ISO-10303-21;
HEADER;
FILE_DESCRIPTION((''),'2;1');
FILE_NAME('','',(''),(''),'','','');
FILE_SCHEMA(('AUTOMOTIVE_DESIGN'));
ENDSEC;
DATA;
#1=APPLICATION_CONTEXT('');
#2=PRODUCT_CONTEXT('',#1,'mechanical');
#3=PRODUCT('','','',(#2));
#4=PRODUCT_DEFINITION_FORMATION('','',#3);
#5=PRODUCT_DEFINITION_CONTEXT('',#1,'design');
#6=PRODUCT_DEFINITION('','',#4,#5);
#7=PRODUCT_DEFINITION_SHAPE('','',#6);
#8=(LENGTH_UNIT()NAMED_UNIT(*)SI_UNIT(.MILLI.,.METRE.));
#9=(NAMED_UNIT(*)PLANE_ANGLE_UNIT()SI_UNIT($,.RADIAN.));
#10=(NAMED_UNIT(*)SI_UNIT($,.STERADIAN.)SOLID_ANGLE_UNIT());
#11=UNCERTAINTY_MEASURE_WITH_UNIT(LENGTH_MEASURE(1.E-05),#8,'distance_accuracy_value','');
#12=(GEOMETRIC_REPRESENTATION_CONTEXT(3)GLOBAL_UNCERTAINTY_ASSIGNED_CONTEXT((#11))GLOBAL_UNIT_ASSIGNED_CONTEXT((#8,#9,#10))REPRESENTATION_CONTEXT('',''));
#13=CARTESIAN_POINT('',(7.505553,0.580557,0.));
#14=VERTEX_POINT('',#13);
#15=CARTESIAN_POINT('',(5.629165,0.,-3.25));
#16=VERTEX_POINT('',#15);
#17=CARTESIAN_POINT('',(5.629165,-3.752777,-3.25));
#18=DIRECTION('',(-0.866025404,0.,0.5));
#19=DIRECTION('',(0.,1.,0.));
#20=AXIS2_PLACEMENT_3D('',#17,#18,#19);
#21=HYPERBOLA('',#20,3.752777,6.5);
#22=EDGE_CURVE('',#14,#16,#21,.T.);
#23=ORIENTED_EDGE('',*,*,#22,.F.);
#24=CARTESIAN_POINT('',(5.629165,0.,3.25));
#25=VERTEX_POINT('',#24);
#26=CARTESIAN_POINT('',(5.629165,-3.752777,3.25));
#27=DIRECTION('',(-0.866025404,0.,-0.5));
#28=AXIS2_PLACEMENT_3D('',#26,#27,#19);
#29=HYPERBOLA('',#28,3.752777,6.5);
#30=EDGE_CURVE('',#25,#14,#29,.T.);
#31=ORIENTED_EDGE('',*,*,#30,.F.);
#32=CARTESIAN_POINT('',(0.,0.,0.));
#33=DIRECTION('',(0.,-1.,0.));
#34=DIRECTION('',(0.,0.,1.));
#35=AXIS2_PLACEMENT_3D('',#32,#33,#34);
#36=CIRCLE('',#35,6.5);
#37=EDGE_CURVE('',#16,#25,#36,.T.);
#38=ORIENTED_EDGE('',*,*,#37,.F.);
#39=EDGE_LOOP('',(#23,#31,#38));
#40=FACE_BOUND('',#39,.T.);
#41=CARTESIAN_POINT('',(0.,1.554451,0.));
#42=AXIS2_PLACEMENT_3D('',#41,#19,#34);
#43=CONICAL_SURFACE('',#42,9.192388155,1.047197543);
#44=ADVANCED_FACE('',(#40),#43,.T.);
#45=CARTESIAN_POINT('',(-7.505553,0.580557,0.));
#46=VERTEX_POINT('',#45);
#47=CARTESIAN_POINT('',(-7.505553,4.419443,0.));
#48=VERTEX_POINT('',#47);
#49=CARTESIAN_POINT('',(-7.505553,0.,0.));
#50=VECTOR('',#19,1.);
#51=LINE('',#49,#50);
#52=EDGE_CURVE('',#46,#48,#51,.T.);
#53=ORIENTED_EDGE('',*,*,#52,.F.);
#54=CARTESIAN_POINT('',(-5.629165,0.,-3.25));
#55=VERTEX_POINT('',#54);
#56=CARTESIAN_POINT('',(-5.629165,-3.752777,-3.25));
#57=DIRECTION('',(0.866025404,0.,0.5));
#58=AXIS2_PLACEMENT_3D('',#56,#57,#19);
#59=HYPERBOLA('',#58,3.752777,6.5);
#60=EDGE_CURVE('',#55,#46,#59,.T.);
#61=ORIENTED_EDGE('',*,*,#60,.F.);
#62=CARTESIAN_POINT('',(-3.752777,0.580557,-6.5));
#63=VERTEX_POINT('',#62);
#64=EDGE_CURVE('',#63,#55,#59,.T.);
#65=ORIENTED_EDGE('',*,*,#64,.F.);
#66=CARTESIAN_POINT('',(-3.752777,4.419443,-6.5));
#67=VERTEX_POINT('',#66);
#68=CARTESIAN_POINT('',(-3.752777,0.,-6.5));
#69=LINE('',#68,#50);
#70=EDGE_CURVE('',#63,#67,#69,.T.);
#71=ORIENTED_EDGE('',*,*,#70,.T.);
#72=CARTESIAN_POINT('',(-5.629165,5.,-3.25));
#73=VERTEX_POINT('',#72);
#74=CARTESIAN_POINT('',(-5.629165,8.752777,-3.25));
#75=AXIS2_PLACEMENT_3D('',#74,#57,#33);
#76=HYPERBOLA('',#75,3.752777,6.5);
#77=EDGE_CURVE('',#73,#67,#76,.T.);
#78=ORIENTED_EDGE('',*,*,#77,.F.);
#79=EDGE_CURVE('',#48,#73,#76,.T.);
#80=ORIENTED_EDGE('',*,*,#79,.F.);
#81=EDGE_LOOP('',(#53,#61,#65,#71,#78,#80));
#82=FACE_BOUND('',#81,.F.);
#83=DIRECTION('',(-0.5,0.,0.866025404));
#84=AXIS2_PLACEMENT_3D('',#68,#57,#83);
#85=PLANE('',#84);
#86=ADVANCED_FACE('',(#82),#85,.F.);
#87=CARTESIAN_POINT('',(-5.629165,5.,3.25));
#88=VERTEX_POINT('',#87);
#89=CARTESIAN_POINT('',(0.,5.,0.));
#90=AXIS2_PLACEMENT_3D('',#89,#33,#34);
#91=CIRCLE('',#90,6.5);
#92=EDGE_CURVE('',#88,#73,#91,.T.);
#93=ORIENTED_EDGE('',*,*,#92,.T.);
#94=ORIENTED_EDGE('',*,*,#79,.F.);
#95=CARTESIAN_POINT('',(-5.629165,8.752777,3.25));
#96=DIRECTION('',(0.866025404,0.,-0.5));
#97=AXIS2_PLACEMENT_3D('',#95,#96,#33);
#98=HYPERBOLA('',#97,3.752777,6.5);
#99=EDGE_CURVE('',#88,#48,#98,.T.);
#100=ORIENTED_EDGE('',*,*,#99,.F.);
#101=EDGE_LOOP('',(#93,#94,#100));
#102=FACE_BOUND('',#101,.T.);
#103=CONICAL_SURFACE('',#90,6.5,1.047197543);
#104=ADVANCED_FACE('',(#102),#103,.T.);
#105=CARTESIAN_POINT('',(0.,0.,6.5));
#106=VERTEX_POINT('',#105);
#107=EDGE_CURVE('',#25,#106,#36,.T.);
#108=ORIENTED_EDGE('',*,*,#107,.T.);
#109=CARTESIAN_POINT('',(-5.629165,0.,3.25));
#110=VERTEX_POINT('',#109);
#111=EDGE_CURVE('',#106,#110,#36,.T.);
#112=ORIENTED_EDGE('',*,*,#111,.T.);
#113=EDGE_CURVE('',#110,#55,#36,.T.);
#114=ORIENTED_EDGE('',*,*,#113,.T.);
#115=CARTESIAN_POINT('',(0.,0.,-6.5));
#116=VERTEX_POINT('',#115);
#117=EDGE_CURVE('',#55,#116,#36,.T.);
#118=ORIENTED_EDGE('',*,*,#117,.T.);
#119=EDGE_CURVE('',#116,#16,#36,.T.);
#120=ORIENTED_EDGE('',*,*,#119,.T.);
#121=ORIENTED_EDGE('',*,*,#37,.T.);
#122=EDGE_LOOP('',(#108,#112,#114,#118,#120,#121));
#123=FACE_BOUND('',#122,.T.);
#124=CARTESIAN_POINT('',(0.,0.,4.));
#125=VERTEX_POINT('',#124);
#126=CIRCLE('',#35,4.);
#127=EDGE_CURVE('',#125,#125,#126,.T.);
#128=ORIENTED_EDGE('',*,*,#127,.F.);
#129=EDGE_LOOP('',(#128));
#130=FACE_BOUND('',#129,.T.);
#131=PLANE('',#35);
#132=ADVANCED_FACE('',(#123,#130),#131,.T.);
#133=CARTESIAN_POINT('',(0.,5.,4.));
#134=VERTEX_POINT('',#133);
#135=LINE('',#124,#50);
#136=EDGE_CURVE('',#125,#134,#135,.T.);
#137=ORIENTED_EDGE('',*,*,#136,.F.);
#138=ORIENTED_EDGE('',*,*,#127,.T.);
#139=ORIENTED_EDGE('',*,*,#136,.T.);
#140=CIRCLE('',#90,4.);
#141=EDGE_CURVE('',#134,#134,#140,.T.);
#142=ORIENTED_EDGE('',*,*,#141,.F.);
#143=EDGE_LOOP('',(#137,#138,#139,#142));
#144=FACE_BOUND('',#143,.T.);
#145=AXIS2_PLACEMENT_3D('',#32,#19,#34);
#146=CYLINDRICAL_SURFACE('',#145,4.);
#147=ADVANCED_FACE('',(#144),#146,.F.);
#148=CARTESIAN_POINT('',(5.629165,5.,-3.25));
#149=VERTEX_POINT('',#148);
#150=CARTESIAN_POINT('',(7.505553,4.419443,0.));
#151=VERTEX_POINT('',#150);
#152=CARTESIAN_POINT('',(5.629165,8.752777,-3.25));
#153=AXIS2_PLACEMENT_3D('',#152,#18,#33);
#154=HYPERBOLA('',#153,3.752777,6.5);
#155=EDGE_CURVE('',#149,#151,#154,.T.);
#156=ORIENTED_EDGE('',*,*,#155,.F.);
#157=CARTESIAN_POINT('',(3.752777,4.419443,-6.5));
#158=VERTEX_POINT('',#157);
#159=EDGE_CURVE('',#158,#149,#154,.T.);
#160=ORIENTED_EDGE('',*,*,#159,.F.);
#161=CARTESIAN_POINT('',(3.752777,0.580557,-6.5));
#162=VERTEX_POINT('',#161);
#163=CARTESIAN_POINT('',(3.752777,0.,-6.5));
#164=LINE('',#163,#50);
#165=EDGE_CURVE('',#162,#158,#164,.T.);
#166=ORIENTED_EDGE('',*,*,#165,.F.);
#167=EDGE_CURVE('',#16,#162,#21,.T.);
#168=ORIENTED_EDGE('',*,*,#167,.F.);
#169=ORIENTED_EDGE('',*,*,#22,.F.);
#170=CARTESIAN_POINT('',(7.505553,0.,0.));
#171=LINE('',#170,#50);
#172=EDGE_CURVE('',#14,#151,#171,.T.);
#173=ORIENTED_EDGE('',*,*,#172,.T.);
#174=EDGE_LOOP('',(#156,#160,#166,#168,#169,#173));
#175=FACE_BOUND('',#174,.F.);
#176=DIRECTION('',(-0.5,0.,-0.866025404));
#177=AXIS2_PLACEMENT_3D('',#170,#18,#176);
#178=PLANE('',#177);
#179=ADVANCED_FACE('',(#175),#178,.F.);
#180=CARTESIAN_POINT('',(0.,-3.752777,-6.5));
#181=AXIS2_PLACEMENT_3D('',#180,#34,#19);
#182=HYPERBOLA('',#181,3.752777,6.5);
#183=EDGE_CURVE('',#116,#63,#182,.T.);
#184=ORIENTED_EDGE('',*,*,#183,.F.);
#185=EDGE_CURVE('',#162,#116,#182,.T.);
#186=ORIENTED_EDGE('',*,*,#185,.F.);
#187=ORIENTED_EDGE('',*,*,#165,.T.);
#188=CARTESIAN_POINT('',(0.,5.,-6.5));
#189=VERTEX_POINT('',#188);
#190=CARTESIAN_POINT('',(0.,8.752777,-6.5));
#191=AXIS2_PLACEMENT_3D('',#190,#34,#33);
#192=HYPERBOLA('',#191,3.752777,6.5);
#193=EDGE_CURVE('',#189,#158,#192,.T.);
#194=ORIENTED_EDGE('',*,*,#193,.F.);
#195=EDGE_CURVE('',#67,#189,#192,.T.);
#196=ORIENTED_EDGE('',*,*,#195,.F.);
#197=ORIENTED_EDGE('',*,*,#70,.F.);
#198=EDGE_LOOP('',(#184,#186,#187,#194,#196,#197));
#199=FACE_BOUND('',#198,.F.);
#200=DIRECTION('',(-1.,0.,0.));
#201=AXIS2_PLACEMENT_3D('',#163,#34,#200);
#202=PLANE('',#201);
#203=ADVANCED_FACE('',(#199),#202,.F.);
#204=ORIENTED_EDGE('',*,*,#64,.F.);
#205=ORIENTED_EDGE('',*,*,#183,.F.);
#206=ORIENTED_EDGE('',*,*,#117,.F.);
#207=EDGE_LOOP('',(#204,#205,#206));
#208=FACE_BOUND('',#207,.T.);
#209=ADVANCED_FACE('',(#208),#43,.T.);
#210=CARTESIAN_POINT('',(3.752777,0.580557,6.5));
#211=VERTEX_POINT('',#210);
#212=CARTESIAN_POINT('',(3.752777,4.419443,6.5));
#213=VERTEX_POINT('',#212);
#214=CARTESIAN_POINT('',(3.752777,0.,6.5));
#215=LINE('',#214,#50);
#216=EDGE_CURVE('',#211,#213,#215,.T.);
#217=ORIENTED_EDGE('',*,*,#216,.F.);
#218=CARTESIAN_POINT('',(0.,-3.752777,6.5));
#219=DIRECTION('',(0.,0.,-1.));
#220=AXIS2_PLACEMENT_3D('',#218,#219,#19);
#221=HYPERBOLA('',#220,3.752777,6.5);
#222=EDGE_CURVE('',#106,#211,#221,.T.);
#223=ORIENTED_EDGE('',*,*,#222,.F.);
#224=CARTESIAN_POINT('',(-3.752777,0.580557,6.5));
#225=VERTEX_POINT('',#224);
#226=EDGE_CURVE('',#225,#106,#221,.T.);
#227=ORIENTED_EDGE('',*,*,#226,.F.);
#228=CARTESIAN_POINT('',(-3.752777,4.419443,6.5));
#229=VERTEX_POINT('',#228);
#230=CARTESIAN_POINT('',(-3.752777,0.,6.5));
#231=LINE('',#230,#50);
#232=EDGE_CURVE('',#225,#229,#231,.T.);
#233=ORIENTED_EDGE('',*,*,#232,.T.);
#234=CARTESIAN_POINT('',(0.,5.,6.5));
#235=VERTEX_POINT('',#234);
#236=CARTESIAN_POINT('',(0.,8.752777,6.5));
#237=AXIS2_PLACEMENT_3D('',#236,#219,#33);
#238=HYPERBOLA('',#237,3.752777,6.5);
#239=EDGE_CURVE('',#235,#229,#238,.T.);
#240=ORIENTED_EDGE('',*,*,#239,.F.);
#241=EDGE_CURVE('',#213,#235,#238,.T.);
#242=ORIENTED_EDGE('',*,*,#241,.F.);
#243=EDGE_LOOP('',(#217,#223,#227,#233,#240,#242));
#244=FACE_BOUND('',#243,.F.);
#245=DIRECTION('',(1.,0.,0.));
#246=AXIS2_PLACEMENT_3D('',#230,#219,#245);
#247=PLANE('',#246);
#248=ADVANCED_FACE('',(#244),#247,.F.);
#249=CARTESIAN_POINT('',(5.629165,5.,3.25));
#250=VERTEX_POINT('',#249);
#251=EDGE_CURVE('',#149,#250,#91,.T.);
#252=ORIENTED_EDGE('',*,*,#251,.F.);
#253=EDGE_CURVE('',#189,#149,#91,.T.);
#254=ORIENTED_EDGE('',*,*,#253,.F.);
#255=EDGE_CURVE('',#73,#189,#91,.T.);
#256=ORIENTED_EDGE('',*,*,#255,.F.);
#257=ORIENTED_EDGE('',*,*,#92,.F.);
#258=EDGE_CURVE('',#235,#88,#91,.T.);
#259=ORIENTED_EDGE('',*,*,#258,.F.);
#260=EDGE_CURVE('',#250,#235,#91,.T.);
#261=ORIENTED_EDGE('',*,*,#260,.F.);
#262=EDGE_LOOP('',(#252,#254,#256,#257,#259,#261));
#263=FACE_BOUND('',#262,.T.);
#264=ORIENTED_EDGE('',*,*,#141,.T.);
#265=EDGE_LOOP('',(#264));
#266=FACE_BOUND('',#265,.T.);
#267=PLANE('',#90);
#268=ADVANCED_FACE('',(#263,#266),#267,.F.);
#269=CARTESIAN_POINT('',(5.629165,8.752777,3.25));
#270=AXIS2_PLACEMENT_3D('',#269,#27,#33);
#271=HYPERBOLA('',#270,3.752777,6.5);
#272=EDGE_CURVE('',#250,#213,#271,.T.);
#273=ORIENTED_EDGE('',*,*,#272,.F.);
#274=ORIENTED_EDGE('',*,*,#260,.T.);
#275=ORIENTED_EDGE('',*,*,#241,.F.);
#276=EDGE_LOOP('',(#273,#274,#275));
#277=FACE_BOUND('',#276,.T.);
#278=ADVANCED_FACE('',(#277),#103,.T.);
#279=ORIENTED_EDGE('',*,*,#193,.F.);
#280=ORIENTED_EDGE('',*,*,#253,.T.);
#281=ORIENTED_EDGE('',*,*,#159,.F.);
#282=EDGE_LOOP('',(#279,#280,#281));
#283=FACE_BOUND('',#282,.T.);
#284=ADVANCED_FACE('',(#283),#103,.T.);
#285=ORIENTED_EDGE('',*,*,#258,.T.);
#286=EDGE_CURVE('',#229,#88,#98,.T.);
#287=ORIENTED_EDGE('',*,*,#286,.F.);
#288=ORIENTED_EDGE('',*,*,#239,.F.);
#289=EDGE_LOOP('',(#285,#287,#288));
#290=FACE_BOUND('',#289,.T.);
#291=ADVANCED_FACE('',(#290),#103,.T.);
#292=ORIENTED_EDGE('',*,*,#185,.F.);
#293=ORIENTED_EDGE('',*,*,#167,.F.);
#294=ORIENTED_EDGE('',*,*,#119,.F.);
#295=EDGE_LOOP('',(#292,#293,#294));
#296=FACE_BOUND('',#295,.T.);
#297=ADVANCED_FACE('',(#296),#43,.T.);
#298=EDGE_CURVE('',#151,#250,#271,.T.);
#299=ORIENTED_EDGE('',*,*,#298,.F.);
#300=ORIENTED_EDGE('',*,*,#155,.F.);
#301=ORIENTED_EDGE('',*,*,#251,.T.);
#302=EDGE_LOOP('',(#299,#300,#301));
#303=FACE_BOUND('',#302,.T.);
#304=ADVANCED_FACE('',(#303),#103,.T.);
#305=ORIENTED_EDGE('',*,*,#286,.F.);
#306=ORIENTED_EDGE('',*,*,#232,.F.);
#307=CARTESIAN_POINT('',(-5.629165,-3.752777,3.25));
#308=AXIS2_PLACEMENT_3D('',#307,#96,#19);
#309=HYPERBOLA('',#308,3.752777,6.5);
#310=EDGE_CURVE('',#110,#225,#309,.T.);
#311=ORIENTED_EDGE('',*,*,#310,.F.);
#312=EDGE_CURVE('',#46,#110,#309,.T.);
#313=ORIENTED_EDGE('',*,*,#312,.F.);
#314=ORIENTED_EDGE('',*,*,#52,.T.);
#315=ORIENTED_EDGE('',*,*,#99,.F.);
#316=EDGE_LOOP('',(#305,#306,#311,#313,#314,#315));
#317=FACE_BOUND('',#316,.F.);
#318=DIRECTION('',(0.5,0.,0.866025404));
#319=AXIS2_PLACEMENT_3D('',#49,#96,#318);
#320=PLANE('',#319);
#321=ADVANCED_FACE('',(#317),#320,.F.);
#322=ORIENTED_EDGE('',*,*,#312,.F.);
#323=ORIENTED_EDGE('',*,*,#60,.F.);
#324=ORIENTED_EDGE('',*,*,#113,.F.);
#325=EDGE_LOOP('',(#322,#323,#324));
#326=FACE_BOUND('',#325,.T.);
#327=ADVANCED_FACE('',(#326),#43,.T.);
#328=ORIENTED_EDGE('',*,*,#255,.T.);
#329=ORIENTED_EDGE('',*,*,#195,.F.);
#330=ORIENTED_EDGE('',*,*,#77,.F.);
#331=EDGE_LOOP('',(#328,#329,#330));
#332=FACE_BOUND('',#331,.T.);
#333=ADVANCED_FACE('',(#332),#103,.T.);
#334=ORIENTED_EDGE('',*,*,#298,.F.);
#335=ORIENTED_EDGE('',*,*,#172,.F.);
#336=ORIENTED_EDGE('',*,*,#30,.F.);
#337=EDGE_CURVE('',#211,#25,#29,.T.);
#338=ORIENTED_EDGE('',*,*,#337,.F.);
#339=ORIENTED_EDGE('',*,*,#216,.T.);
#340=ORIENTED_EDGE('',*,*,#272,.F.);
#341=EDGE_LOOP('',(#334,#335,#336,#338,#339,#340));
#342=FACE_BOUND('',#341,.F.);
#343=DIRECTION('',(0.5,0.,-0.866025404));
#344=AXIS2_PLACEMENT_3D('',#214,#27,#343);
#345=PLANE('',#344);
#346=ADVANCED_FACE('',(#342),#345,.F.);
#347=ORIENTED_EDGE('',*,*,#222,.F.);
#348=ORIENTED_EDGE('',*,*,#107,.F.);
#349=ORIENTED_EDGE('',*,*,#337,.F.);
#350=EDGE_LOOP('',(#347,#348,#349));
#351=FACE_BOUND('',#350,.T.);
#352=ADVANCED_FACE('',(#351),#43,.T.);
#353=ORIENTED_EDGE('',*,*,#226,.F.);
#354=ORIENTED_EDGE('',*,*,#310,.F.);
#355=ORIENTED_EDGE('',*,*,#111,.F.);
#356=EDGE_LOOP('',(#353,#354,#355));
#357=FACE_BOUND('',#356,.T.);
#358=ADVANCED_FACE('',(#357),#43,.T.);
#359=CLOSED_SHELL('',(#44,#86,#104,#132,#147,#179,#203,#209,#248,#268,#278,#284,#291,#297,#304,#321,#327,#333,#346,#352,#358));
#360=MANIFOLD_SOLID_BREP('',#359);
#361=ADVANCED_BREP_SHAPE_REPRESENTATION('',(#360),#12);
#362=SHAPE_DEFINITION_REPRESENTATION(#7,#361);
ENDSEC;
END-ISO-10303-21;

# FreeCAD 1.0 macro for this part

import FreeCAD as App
import Part
import Sketcher

V = App.Vector
Q = App.Units.Quantity

doc = App.newDocument("Part")
body = doc.addObject("PartDesign::Body", "Body")

sketch1 = doc.addObject("Sketcher::SketchObject", "Sketch")
body.addObject(sketch1)
sketch1.AttachmentSupport = (doc.XY_Plane, [""])
sketch1.MapMode = "FlatFace"
sketch1.addGeometry(Part.LineSegment(V(6.5, 5, 0), V(4, 5, 0)), False)
sketch1.addGeometry(Part.LineSegment(V(4, 5, 0), V(4, 0, 0)), False)
sketch1.addGeometry(Part.LineSegment(V(4, 0, 0), V(6.5, 0, 0)), False)
sketch1.addGeometry(Part.LineSegment(V(6.5, 0, 0), V(9.192388, 1.554451, 0)), False)
sketch1.addGeometry(Part.LineSegment(V(9.192388, 1.554451, 0), V(9.192388, 3.445549, 0)), False)
sketch1.addGeometry(Part.LineSegment(V(9.192388, 3.445549, 0), V(6.5, 5, 0)), False)
sketch1.addConstraint(Sketcher.Constraint("Coincident", 0, 2, 1, 1))
sketch1.addConstraint(Sketcher.Constraint("Coincident", 1, 2, 2, 1))
sketch1.addConstraint(Sketcher.Constraint("Coincident", 2, 2, 3, 1))
sketch1.addConstraint(Sketcher.Constraint("Coincident", 3, 2, 4, 1))
sketch1.addConstraint(Sketcher.Constraint("Coincident", 4, 2, 5, 1))
sketch1.addConstraint(Sketcher.Constraint("Coincident", 5, 2, 0, 1))
sketch1.addConstraint(Sketcher.Constraint("Horizontal", 0))
sketch1.addConstraint(Sketcher.Constraint("Vertical", 1))
sketch1.addConstraint(Sketcher.Constraint("Horizontal", 2))
sketch1.addConstraint(Sketcher.Constraint("Vertical", 4))
sketch1.addConstraint(Sketcher.Constraint("PointOnObject", 1, 2, -1))
sketch1.addConstraint(Sketcher.Constraint("Vertical", 2, 2, 5, 2))
sketch1.addConstraint(Sketcher.Constraint("Equal", 3, 5))
sketch1.addConstraint(Sketcher.Constraint("DistanceY", 1, 2, 1, 1, Q("5 mm")))
sketch1.addConstraint(Sketcher.Constraint("Angle", 3, Q("30 deg")))
sketch1.addConstraint(Sketcher.Constraint("DistanceX", 0, 2, 0, 1, Q("2.5 mm")))
sketch1.addConstraint(Sketcher.Constraint("DistanceX", -1, 1, 0, 2, Q("4 mm")))
sketch1.addConstraint(Sketcher.Constraint("DistanceY", 4, 1, 4, 2, Q("1.891098 mm")))
revolution = doc.addObject("PartDesign::Revolution", "Revolution")
body.addObject(revolution)
revolution.Profile = sketch1
revolution.ReferenceAxis = (sketch1, ["V_Axis"])
revolution.Angle = 360

sketch2 = doc.addObject("Sketcher::SketchObject", "Sketch001")
body.addObject(sketch2)
sketch2.AttachmentSupport = (doc.XZ_Plane, [""])
sketch2.MapMode = "FlatFace"
sketch2.addGeometry(Part.LineSegment(V(-12.84, -12.84, 0), V(-12.84, 12.84, 0)), False)
sketch2.addGeometry(Part.LineSegment(V(-12.84, 12.84, 0), V(12.84, 12.84, 0)), False)
sketch2.addGeometry(Part.LineSegment(V(12.84, 12.84, 0), V(12.84, -12.84, 0)), False)
sketch2.addGeometry(Part.LineSegment(V(12.84, -12.84, 0), V(-12.84, -12.84, 0)), False)
sketch2.addGeometry(Part.LineSegment(V(3.752777, 6.5, 0), V(-3.752777, 6.5, 0)), False)
sketch2.addGeometry(Part.LineSegment(V(-3.752777, 6.5, 0), V(-7.505553, 0, 0)), False)
sketch2.addGeometry(Part.LineSegment(V(-7.505553, 0, 0), V(-3.752777, -6.5, 0)), False)
sketch2.addGeometry(Part.LineSegment(V(-3.752777, -6.5, 0), V(3.752777, -6.5, 0)), False)
sketch2.addGeometry(Part.LineSegment(V(3.752777, -6.5, 0), V(7.505553, 0, 0)), False)
sketch2.addGeometry(Part.LineSegment(V(7.505553, 0, 0), V(3.752777, 6.5, 0)), False)
sketch2.addConstraint(Sketcher.Constraint("Coincident", 0, 2, 1, 1))
sketch2.addConstraint(Sketcher.Constraint("Coincident", 1, 2, 2, 1))
sketch2.addConstraint(Sketcher.Constraint("Coincident", 2, 2, 3, 1))
sketch2.addConstraint(Sketcher.Constraint("Coincident", 3, 2, 0, 1))
sketch2.addConstraint(Sketcher.Constraint("Coincident", 4, 2, 5, 1))
sketch2.addConstraint(Sketcher.Constraint("Coincident", 5, 2, 6, 1))
sketch2.addConstraint(Sketcher.Constraint("Coincident", 6, 2, 7, 1))
sketch2.addConstraint(Sketcher.Constraint("Coincident", 7, 2, 8, 1))
sketch2.addConstraint(Sketcher.Constraint("Coincident", 8, 2, 9, 1))
sketch2.addConstraint(Sketcher.Constraint("Coincident", 9, 2, 4, 1))
sketch2.addConstraint(Sketcher.Constraint("Vertical", 0))
sketch2.addConstraint(Sketcher.Constraint("Horizontal", 1))
sketch2.addConstraint(Sketcher.Constraint("Vertical", 2))
sketch2.addConstraint(Sketcher.Constraint("Horizontal", 3))
sketch2.addConstraint(Sketcher.Constraint("Horizontal", 4))
sketch2.addConstraint(Sketcher.Constraint("Horizontal", 7))
sketch2.addConstraint(Sketcher.Constraint("Symmetric", 0, 2, 2, 2, -1, 1))
sketch2.addConstraint(Sketcher.Constraint("Symmetric", 4, 2, 7, 2, -1, 1))
sketch2.addConstraint(Sketcher.Constraint("Symmetric", 5, 2, 8, 2, -1, 1))
sketch2.addConstraint(Sketcher.Constraint("PointOnObject", 5, 2, -1))
sketch2.addConstraint(Sketcher.Constraint("Parallel", 6, 9))
sketch2.addConstraint(Sketcher.Constraint("Vertical", 4, 2, 6, 2))
sketch2.addConstraint(Sketcher.Constraint("Equal", 3, 0))
sketch2.addConstraint(Sketcher.Constraint("Angle", 5, Q("-120 deg")))
sketch2.addConstraint(Sketcher.Constraint("DistanceY", 6, 2, 4, 2, Q("13 mm")))
sketch2.addConstraint(Sketcher.Constraint("DistanceX", 1, 1, 1, 2, Q("25.68 mm")))
sketch2.addConstraint(Sketcher.Constraint("DistanceX", 4, 2, 4, 1, Q("7.505554 mm")))
pocket1 = doc.addObject("PartDesign::Pocket", "Pocket")
body.addObject(pocket1)
pocket1.Profile = sketch2
pocket1.Length = 5

doc.recompute()
